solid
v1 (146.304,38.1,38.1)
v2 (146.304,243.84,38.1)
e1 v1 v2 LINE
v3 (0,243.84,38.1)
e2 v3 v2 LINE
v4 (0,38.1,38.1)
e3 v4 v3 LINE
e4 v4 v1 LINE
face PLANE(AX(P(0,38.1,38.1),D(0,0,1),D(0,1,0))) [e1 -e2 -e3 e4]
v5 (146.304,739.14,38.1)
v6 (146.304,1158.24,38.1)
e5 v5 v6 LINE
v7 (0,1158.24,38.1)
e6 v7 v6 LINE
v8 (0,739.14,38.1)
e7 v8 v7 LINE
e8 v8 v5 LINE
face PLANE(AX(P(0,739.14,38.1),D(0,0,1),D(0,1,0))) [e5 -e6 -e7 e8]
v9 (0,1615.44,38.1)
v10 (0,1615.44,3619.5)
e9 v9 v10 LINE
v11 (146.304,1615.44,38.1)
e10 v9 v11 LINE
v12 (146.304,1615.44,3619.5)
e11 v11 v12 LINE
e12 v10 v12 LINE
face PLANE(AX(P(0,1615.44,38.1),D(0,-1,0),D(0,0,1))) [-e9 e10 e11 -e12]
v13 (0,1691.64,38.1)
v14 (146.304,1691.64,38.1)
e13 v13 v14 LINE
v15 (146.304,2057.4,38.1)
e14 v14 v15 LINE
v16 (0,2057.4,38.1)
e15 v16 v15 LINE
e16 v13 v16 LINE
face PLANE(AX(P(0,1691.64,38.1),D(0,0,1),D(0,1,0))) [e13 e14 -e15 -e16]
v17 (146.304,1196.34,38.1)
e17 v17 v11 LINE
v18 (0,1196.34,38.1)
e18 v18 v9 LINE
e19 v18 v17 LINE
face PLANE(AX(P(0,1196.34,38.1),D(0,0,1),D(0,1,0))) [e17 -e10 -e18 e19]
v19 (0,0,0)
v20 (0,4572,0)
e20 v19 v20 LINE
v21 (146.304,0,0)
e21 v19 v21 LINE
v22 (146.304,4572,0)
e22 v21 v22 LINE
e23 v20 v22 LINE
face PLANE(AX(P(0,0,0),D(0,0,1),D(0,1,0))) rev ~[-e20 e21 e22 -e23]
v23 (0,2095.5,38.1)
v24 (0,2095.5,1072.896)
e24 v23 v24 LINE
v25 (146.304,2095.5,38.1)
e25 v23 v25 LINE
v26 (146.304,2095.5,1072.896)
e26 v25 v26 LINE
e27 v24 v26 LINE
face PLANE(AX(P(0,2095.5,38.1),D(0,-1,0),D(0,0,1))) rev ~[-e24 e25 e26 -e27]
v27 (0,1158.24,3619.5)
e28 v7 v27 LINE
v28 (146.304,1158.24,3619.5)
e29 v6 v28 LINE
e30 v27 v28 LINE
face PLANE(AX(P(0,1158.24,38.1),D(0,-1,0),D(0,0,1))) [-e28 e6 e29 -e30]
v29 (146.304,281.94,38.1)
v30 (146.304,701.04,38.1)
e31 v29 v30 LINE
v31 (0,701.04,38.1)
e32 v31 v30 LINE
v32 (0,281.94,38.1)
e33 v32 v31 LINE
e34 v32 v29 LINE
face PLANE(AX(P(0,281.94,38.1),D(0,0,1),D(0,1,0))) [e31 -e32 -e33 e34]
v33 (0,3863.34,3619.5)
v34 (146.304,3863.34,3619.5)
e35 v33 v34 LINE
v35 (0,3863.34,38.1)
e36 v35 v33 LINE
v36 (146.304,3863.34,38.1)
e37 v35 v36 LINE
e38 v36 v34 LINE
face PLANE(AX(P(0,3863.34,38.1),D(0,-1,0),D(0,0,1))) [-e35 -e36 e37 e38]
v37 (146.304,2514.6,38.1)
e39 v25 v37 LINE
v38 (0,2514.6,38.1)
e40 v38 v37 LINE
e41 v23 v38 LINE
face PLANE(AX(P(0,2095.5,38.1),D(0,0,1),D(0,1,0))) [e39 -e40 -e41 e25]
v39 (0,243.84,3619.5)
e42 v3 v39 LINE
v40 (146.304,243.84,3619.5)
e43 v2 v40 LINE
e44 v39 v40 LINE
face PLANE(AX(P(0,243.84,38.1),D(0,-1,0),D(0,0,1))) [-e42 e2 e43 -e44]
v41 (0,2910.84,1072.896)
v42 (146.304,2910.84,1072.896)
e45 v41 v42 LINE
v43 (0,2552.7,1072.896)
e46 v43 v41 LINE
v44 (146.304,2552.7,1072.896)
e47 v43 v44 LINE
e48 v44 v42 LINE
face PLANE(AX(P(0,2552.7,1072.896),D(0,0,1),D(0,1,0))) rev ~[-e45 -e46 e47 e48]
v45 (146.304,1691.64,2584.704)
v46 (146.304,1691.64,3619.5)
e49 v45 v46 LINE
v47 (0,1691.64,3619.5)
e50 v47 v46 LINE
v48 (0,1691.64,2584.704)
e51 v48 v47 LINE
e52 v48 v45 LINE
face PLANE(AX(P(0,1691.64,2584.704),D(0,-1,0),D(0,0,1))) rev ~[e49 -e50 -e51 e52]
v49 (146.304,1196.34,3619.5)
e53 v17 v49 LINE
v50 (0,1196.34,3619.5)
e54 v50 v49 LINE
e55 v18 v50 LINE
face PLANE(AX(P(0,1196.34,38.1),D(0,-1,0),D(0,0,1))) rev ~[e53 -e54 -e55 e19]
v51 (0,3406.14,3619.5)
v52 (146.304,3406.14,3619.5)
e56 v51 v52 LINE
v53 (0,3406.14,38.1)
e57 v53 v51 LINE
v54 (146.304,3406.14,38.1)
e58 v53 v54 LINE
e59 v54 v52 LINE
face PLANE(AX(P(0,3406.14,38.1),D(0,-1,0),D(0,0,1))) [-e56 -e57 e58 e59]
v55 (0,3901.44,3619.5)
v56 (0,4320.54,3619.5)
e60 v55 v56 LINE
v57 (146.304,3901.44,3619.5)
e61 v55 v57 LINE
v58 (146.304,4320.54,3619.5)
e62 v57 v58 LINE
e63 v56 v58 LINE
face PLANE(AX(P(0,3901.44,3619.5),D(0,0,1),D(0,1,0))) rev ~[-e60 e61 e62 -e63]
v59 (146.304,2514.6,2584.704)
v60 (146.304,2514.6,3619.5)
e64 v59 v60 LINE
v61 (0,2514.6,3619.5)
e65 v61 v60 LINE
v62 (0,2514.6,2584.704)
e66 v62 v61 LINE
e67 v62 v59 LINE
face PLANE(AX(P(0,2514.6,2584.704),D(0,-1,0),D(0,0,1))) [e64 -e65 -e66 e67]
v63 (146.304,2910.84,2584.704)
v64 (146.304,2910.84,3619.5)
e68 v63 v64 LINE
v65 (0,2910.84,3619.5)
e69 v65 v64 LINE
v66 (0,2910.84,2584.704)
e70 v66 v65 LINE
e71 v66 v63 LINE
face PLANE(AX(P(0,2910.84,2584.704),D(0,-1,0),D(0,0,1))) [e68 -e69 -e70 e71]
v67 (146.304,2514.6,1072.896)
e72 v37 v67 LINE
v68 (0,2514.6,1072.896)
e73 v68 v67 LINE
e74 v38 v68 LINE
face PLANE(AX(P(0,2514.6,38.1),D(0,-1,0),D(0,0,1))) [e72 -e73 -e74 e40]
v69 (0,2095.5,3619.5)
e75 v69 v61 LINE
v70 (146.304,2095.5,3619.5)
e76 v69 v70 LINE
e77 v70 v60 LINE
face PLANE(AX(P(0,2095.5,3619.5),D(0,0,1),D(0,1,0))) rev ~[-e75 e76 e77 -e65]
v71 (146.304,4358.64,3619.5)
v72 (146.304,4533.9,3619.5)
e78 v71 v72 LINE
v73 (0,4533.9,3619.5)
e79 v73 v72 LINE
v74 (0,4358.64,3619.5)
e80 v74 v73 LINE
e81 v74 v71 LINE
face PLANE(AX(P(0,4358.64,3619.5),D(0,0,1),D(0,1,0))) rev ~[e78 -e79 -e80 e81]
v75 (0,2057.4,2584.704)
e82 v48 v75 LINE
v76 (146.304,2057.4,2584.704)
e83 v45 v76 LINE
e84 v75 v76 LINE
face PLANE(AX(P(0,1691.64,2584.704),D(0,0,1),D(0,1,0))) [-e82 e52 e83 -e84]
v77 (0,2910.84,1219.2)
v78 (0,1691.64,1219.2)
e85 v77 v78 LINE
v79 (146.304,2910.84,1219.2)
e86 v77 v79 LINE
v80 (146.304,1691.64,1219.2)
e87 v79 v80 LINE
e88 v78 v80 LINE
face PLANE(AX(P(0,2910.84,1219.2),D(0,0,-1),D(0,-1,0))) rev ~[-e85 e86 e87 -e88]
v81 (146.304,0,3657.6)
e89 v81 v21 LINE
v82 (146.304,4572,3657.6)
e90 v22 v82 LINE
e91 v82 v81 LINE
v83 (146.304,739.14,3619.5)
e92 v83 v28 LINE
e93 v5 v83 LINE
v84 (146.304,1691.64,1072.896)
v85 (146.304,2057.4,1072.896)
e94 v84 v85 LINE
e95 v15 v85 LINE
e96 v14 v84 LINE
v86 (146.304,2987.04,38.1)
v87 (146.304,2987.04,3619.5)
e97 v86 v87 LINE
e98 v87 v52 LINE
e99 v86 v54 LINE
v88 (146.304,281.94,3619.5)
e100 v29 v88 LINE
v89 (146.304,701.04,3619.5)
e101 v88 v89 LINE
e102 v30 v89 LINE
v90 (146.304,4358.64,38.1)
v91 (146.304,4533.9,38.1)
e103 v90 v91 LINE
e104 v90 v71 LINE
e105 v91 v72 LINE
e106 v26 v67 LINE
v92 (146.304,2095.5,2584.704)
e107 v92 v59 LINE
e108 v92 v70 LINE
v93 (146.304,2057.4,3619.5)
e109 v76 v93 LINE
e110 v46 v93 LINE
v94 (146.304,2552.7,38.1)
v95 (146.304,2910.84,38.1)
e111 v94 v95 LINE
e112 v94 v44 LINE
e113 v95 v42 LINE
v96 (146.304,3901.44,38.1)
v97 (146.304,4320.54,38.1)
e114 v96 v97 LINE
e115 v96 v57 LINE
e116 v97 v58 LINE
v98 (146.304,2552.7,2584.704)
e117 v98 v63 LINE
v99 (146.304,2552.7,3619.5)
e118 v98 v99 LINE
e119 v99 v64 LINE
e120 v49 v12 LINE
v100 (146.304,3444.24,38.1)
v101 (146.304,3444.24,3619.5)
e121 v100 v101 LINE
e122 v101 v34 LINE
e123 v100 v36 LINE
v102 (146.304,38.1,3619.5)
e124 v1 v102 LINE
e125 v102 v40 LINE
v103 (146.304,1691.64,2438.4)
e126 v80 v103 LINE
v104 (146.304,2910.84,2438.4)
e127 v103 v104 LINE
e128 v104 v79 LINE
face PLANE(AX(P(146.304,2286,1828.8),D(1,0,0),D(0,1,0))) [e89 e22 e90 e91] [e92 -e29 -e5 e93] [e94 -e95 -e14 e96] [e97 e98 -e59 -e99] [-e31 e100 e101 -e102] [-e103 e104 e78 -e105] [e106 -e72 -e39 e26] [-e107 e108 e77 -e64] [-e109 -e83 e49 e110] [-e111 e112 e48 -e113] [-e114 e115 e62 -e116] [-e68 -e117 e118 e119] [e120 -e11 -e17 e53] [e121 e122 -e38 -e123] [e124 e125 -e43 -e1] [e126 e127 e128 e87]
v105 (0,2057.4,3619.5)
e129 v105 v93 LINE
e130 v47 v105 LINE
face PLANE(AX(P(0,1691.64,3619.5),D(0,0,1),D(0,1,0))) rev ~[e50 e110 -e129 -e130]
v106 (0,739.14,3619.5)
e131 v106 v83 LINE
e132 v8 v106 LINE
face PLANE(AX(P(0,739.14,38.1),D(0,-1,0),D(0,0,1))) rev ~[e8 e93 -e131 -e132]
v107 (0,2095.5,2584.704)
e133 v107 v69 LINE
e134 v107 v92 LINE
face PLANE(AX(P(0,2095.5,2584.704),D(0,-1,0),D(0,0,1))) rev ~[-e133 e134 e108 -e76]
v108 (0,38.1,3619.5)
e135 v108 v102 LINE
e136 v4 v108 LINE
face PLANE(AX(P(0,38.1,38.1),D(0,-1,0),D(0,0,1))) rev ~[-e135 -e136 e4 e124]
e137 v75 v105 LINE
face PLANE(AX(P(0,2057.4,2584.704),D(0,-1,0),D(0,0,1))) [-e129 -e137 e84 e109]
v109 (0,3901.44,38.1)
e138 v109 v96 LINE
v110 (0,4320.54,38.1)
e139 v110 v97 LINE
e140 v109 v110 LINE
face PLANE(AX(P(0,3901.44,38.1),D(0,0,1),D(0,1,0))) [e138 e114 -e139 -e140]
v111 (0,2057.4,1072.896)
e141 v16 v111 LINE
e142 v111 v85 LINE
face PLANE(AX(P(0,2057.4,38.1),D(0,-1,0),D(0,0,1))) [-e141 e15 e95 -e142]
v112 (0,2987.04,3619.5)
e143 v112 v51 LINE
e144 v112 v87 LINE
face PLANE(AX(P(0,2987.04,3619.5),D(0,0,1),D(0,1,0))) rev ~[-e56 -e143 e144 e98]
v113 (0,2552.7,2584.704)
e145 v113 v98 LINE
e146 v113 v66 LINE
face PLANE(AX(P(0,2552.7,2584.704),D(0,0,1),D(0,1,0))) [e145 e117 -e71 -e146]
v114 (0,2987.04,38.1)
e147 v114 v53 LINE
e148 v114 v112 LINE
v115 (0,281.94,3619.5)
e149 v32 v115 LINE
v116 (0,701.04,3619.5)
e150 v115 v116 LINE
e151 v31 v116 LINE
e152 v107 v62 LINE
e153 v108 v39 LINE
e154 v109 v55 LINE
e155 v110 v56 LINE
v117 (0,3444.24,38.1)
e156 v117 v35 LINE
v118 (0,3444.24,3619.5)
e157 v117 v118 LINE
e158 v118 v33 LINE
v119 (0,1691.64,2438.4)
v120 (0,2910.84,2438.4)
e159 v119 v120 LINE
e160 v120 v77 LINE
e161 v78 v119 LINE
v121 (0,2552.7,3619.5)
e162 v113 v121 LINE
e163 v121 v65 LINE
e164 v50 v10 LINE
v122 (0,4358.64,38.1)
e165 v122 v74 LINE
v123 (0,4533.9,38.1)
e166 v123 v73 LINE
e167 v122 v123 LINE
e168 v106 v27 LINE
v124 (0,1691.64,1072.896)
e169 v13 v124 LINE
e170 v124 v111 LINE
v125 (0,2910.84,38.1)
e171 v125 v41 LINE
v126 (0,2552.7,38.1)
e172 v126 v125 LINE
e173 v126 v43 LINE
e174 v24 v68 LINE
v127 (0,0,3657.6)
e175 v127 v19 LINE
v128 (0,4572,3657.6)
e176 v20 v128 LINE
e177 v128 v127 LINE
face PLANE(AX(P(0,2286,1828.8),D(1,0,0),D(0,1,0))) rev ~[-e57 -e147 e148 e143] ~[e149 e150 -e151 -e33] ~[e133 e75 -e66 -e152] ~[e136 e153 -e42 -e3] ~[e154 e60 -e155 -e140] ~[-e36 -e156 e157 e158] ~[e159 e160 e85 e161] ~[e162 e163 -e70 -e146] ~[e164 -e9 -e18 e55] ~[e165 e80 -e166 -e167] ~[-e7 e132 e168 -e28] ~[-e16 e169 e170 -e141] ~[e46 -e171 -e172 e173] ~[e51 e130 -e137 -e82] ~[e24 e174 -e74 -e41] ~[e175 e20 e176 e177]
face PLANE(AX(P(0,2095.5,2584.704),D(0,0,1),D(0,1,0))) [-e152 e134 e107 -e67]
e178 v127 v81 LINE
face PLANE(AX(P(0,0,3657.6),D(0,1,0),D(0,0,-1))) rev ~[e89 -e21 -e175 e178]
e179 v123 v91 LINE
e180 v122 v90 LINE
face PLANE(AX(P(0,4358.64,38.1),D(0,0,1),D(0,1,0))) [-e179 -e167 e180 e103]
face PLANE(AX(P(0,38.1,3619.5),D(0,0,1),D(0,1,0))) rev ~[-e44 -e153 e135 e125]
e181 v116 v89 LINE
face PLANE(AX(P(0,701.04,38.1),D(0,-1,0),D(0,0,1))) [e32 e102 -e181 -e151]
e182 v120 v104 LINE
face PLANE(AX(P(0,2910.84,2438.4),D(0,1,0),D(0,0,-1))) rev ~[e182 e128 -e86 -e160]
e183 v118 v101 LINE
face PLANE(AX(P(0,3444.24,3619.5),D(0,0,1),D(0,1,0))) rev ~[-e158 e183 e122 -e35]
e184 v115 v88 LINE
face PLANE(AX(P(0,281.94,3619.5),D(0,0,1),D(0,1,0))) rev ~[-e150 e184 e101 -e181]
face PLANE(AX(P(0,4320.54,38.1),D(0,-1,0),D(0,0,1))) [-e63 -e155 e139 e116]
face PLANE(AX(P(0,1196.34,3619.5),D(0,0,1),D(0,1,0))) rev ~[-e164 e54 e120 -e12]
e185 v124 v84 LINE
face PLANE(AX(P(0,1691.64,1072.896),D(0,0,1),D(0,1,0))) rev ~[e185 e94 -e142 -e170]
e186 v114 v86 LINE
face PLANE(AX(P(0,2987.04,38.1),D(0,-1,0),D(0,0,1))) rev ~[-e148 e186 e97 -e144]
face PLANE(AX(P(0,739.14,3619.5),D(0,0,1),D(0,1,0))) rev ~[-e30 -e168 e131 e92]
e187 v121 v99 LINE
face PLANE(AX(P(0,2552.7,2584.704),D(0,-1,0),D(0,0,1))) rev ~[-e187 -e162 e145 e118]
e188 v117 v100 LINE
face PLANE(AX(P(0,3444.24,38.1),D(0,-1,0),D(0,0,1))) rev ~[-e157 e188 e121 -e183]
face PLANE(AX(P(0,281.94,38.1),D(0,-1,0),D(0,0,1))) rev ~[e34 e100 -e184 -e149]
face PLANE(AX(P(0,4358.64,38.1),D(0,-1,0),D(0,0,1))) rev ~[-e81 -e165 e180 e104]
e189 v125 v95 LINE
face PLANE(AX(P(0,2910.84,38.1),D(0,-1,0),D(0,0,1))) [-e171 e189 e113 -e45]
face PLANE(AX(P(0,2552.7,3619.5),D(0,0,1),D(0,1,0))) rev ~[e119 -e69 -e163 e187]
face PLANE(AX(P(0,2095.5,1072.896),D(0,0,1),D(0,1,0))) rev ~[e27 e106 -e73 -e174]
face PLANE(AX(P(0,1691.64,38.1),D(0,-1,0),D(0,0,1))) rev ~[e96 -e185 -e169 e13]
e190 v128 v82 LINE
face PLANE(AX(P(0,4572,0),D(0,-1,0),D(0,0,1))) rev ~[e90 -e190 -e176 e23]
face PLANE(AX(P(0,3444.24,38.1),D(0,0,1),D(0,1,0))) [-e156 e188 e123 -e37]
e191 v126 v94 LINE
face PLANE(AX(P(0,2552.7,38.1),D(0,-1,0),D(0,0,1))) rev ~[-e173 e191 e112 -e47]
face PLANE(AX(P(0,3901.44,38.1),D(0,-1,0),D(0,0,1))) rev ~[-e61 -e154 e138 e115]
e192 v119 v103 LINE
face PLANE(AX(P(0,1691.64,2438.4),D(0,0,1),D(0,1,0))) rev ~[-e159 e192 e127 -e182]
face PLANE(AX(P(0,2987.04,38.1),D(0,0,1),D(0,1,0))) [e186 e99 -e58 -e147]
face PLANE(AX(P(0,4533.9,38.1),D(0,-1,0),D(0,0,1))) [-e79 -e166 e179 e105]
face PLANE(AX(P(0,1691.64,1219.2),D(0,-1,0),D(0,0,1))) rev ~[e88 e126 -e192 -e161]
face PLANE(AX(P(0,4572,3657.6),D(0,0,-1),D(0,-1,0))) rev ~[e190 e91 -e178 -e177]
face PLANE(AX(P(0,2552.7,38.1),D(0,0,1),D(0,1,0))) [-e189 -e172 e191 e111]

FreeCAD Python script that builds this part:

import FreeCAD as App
import Part
import Sketcher
Q = App.Units.Quantity


def add_polygon(sketch, points):
    """Adds a closed chain of lines whose ends are joined by coincident constraints."""
    first, n = sketch.GeometryCount, len(points)
    for a, b in zip(points, points[1:] + points[:1]):
        sketch.addGeometry(Part.LineSegment(App.Vector(*a, 0), App.Vector(*b, 0)), False)
    for i in range(n):
        sketch.addConstraint(Sketcher.Constraint("Coincident", first + i, 2, first + (i + 1) % n, 1))

doc = App.newDocument("Part")
body = doc.addObject("PartDesign::Body", "Body")

sketch1 = body.newObject("Sketcher::SketchObject", "Sketch")
sketch1.AttachmentSupport = (doc.getObject("YZ_Plane"), [""])
sketch1.MapMode = "FlatFace"
add_polygon(sketch1, [(0, 3658), (0, 0), (4572, 0), (4572, 3658)])
add_polygon(sketch1, [(2057, 38), (1692, 38), (1692, 1073), (2057, 1073)])
add_polygon(sketch1, [(2515, 38), (2096, 38), (2096, 1073), (2515, 1073)])
add_polygon(sketch1, [(2911, 38), (2553, 38), (2553, 1073), (2911, 1073)])
add_polygon(sketch1, [(244, 38), (38, 38), (38, 3620), (244, 3620)])
add_polygon(sketch1, [(701, 38), (282, 38), (282, 3620), (701, 3620)])
add_polygon(sketch1, [(1158, 38), (739, 38), (739, 3620), (1158, 3620)])
add_polygon(sketch1, [(1615, 38), (1196, 38), (1196, 3620), (1615, 3620)])
add_polygon(sketch1, [(2057, 2585), (1692, 2585), (1692, 3620), (2057, 3620)])
add_polygon(sketch1, [(2911, 1219), (1692, 1219), (1692, 2438), (2911, 2438)])
add_polygon(sketch1, [(3406, 38), (2987, 38), (2987, 3620), (3406, 3620)])
add_polygon(sketch1, [(3863, 38), (3444, 38), (3444, 3620), (3863, 3620)])
add_polygon(sketch1, [(4321, 38), (3901, 38), (3901, 3620), (4321, 3620)])
add_polygon(sketch1, [(4534, 38), (4359, 38), (4359, 3620), (4534, 3620)])
add_polygon(sketch1, [(2515, 2585), (2096, 2585), (2096, 3620), (2515, 3620)])
add_polygon(sketch1, [(2911, 2585), (2553, 2585), (2553, 3620), (2911, 3620)])
sketch1.addConstraint([
    Sketcher.Constraint("Vertical", 0),
    Sketcher.Constraint("Horizontal", 1),
    Sketcher.Constraint("Vertical", 2),
    Sketcher.Constraint("Horizontal", 3),
    Sketcher.Constraint("Horizontal", 4),
    Sketcher.Constraint("Vertical", 5),
    Sketcher.Constraint("Horizontal", 6),
    Sketcher.Constraint("Vertical", 7),
    Sketcher.Constraint("Horizontal", 8),
    Sketcher.Constraint("Vertical", 9),
    Sketcher.Constraint("Horizontal", 10),
    Sketcher.Constraint("Vertical", 11),
    Sketcher.Constraint("Horizontal", 12),
    Sketcher.Constraint("Vertical", 13),
    Sketcher.Constraint("Horizontal", 14),
    Sketcher.Constraint("Vertical", 15),
    Sketcher.Constraint("Horizontal", 16),
    Sketcher.Constraint("Vertical", 17),
    Sketcher.Constraint("Horizontal", 18),
    Sketcher.Constraint("Vertical", 19),
    Sketcher.Constraint("Horizontal", 20),
    Sketcher.Constraint("Vertical", 21),
    Sketcher.Constraint("Horizontal", 22),
    Sketcher.Constraint("Vertical", 23),
    Sketcher.Constraint("Horizontal", 24),
    Sketcher.Constraint("Vertical", 25),
    Sketcher.Constraint("Horizontal", 26),
    Sketcher.Constraint("Vertical", 27),
    Sketcher.Constraint("Horizontal", 28),
    Sketcher.Constraint("Vertical", 29),
    Sketcher.Constraint("Horizontal", 30),
    Sketcher.Constraint("Vertical", 31),
    Sketcher.Constraint("Horizontal", 32),
    Sketcher.Constraint("Vertical", 33),
    Sketcher.Constraint("Horizontal", 34),
    Sketcher.Constraint("Vertical", 35),
    Sketcher.Constraint("Horizontal", 36),
    Sketcher.Constraint("Vertical", 37),
    Sketcher.Constraint("Horizontal", 38),
    Sketcher.Constraint("Vertical", 39),
    Sketcher.Constraint("Horizontal", 40),
    Sketcher.Constraint("Vertical", 41),
    Sketcher.Constraint("Horizontal", 42),
    Sketcher.Constraint("Vertical", 43),
    Sketcher.Constraint("Horizontal", 44),
    Sketcher.Constraint("Vertical", 45),
    Sketcher.Constraint("Horizontal", 46),
    Sketcher.Constraint("Vertical", 47),
    Sketcher.Constraint("Horizontal", 48),
    Sketcher.Constraint("Vertical", 49),
    Sketcher.Constraint("Horizontal", 50),
    Sketcher.Constraint("Vertical", 51),
    Sketcher.Constraint("Horizontal", 52),
    Sketcher.Constraint("Vertical", 53),
    Sketcher.Constraint("Horizontal", 54),
    Sketcher.Constraint("Vertical", 55),
    Sketcher.Constraint("Horizontal", 56),
    Sketcher.Constraint("Vertical", 57),
    Sketcher.Constraint("Horizontal", 58),
    Sketcher.Constraint("Vertical", 59),
    Sketcher.Constraint("Horizontal", 60),
    Sketcher.Constraint("Vertical", 61),
    Sketcher.Constraint("Horizontal", 62),
    Sketcher.Constraint("Vertical", 63),
    Sketcher.Constraint("Coincident", 0, 2, -1, 1),
    Sketcher.Constraint("Horizontal", 7, 2, 8, 2),
    Sketcher.Constraint("Horizontal", 6, 2, 9, 2),
    Sketcher.Constraint("Horizontal", 11, 2, 12, 2),
    Sketcher.Constraint("Horizontal", 10, 2, 13, 2),
    Sketcher.Constraint("Horizontal", 15, 2, 16, 2),
    Sketcher.Constraint("Horizontal", 19, 2, 20, 2),
    Sketcher.Constraint("Horizontal", 18, 2, 21, 2),
    Sketcher.Constraint("Horizontal", 23, 2, 24, 2),
    Sketcher.Constraint("Horizontal", 22, 2, 25, 2),
    Sketcher.Constraint("Horizontal", 27, 2, 28, 2),
    Sketcher.Constraint("Horizontal", 26, 2, 29, 2),
    Sketcher.Constraint("Horizontal", 30, 2, 33, 2),
    Sketcher.Constraint("Horizontal", 31, 2, 40, 2),
    Sketcher.Constraint("Horizontal", 34, 2, 41, 2),
    Sketcher.Constraint("Horizontal", 43, 2, 44, 2),
    Sketcher.Constraint("Horizontal", 42, 2, 45, 2),
    Sketcher.Constraint("Horizontal", 47, 2, 48, 2),
    Sketcher.Constraint("Horizontal", 46, 2, 49, 2),
    Sketcher.Constraint("Horizontal", 51, 2, 52, 2),
    Sketcher.Constraint("Horizontal", 50, 2, 53, 2),
    Sketcher.Constraint("Horizontal", 35, 2, 56, 2),
    Sketcher.Constraint("Horizontal", 54, 2, 57, 2),
    Sketcher.Constraint("Horizontal", 59, 2, 60, 2),
    Sketcher.Constraint("Horizontal", 58, 2, 61, 2),
    Sketcher.Constraint("Vertical", 5, 2, 32, 2),
    Sketcher.Constraint("Vertical", 7, 2, 34, 2),
    Sketcher.Constraint("Vertical", 33, 2, 36, 2),
    Sketcher.Constraint("Vertical", 15, 2, 38, 2),
    Sketcher.Constraint("Vertical", 9, 2, 56, 2),
    Sketcher.Constraint("Vertical", 11, 2, 58, 2),
    Sketcher.Constraint("Vertical", 13, 2, 60, 2),
    Sketcher.Constraint("Vertical", 39, 2, 62, 2),
    Sketcher.Constraint("Equal", 10, 20),
    Sketcher.Constraint("Equal", 22, 24),
    Sketcher.Constraint("Equal", 26, 28),
    Sketcher.Constraint("Equal", 30, 40),
    Sketcher.Constraint("Equal", 42, 44),
    Sketcher.Constraint("Equal", 46, 48),
    Sketcher.Constraint("Equal", 15, 33),
    Sketcher.Constraint("Equal", 38, 37),
    Sketcher.Constraint("DistanceX", 1, 1, 1, 2, Q("180 in")),
    Sketcher.Constraint("DistanceX", 36, 2, 36, 1, Q("48 in")),
    Sketcher.Constraint("DistanceY", 0, 2, 0, 1, Q("144 in")),
    Sketcher.Constraint("DistanceY", 17, 1, 17, 2, Q("141 in")),
    Sketcher.Constraint("DistanceX", 4, 2, 4, 1, Q("14.4 in")),
    Sketcher.Constraint("DistanceX", 8, 2, 8, 1, Q("16.5 in")),
    Sketcher.Constraint("DistanceX", 12, 2, 12, 1, Q("14.1 in")),
    Sketcher.Constraint("DistanceX", 16, 2, 16, 1, Q("8.1 in")),
    Sketcher.Constraint("DistanceX", 52, 2, 52, 1, Q("6.9 in")),
    Sketcher.Constraint("DistanceX", -1, 1, 6, 2, Q("81 in")),
    Sketcher.Constraint("DistanceX", -1, 1, 10, 2, Q("99 in")),
    Sketcher.Constraint("DistanceY", -1, 1, 36, 2, Q("48 in")),
    Sketcher.Constraint("DistanceY", 5, 1, 5, 2, Q("40.74 in")),
    Sketcher.Constraint("DistanceY", -1, 1, 4, 2, Q("1.5 in")),
    Sketcher.Constraint("DistanceX", -1, 1, 16, 2, Q("1.5 in")),
    Sketcher.Constraint("DistanceX", -1, 1, 20, 2, Q("11.1 in")),
    Sketcher.Constraint("DistanceX", -1, 1, 24, 2, Q("29.1 in")),
    Sketcher.Constraint("DistanceX", -1, 1, 28, 2, Q("47.1 in")),
    Sketcher.Constraint("DistanceX", -1, 1, 40, 2, Q("117.6 in")),
    Sketcher.Constraint("DistanceX", -1, 1, 44, 2, Q("135.6 in")),
    Sketcher.Constraint("DistanceX", -1, 1, 48, 2, Q("153.6 in")),
    Sketcher.Constraint("DistanceX", -1, 1, 52, 2, Q("171.6 in")),
])
pad1 = body.newObject("PartDesign::Pad", "Pad")
pad1.Profile = sketch1
pad1.Length = Q("5.76 in")

doc.recompute()
